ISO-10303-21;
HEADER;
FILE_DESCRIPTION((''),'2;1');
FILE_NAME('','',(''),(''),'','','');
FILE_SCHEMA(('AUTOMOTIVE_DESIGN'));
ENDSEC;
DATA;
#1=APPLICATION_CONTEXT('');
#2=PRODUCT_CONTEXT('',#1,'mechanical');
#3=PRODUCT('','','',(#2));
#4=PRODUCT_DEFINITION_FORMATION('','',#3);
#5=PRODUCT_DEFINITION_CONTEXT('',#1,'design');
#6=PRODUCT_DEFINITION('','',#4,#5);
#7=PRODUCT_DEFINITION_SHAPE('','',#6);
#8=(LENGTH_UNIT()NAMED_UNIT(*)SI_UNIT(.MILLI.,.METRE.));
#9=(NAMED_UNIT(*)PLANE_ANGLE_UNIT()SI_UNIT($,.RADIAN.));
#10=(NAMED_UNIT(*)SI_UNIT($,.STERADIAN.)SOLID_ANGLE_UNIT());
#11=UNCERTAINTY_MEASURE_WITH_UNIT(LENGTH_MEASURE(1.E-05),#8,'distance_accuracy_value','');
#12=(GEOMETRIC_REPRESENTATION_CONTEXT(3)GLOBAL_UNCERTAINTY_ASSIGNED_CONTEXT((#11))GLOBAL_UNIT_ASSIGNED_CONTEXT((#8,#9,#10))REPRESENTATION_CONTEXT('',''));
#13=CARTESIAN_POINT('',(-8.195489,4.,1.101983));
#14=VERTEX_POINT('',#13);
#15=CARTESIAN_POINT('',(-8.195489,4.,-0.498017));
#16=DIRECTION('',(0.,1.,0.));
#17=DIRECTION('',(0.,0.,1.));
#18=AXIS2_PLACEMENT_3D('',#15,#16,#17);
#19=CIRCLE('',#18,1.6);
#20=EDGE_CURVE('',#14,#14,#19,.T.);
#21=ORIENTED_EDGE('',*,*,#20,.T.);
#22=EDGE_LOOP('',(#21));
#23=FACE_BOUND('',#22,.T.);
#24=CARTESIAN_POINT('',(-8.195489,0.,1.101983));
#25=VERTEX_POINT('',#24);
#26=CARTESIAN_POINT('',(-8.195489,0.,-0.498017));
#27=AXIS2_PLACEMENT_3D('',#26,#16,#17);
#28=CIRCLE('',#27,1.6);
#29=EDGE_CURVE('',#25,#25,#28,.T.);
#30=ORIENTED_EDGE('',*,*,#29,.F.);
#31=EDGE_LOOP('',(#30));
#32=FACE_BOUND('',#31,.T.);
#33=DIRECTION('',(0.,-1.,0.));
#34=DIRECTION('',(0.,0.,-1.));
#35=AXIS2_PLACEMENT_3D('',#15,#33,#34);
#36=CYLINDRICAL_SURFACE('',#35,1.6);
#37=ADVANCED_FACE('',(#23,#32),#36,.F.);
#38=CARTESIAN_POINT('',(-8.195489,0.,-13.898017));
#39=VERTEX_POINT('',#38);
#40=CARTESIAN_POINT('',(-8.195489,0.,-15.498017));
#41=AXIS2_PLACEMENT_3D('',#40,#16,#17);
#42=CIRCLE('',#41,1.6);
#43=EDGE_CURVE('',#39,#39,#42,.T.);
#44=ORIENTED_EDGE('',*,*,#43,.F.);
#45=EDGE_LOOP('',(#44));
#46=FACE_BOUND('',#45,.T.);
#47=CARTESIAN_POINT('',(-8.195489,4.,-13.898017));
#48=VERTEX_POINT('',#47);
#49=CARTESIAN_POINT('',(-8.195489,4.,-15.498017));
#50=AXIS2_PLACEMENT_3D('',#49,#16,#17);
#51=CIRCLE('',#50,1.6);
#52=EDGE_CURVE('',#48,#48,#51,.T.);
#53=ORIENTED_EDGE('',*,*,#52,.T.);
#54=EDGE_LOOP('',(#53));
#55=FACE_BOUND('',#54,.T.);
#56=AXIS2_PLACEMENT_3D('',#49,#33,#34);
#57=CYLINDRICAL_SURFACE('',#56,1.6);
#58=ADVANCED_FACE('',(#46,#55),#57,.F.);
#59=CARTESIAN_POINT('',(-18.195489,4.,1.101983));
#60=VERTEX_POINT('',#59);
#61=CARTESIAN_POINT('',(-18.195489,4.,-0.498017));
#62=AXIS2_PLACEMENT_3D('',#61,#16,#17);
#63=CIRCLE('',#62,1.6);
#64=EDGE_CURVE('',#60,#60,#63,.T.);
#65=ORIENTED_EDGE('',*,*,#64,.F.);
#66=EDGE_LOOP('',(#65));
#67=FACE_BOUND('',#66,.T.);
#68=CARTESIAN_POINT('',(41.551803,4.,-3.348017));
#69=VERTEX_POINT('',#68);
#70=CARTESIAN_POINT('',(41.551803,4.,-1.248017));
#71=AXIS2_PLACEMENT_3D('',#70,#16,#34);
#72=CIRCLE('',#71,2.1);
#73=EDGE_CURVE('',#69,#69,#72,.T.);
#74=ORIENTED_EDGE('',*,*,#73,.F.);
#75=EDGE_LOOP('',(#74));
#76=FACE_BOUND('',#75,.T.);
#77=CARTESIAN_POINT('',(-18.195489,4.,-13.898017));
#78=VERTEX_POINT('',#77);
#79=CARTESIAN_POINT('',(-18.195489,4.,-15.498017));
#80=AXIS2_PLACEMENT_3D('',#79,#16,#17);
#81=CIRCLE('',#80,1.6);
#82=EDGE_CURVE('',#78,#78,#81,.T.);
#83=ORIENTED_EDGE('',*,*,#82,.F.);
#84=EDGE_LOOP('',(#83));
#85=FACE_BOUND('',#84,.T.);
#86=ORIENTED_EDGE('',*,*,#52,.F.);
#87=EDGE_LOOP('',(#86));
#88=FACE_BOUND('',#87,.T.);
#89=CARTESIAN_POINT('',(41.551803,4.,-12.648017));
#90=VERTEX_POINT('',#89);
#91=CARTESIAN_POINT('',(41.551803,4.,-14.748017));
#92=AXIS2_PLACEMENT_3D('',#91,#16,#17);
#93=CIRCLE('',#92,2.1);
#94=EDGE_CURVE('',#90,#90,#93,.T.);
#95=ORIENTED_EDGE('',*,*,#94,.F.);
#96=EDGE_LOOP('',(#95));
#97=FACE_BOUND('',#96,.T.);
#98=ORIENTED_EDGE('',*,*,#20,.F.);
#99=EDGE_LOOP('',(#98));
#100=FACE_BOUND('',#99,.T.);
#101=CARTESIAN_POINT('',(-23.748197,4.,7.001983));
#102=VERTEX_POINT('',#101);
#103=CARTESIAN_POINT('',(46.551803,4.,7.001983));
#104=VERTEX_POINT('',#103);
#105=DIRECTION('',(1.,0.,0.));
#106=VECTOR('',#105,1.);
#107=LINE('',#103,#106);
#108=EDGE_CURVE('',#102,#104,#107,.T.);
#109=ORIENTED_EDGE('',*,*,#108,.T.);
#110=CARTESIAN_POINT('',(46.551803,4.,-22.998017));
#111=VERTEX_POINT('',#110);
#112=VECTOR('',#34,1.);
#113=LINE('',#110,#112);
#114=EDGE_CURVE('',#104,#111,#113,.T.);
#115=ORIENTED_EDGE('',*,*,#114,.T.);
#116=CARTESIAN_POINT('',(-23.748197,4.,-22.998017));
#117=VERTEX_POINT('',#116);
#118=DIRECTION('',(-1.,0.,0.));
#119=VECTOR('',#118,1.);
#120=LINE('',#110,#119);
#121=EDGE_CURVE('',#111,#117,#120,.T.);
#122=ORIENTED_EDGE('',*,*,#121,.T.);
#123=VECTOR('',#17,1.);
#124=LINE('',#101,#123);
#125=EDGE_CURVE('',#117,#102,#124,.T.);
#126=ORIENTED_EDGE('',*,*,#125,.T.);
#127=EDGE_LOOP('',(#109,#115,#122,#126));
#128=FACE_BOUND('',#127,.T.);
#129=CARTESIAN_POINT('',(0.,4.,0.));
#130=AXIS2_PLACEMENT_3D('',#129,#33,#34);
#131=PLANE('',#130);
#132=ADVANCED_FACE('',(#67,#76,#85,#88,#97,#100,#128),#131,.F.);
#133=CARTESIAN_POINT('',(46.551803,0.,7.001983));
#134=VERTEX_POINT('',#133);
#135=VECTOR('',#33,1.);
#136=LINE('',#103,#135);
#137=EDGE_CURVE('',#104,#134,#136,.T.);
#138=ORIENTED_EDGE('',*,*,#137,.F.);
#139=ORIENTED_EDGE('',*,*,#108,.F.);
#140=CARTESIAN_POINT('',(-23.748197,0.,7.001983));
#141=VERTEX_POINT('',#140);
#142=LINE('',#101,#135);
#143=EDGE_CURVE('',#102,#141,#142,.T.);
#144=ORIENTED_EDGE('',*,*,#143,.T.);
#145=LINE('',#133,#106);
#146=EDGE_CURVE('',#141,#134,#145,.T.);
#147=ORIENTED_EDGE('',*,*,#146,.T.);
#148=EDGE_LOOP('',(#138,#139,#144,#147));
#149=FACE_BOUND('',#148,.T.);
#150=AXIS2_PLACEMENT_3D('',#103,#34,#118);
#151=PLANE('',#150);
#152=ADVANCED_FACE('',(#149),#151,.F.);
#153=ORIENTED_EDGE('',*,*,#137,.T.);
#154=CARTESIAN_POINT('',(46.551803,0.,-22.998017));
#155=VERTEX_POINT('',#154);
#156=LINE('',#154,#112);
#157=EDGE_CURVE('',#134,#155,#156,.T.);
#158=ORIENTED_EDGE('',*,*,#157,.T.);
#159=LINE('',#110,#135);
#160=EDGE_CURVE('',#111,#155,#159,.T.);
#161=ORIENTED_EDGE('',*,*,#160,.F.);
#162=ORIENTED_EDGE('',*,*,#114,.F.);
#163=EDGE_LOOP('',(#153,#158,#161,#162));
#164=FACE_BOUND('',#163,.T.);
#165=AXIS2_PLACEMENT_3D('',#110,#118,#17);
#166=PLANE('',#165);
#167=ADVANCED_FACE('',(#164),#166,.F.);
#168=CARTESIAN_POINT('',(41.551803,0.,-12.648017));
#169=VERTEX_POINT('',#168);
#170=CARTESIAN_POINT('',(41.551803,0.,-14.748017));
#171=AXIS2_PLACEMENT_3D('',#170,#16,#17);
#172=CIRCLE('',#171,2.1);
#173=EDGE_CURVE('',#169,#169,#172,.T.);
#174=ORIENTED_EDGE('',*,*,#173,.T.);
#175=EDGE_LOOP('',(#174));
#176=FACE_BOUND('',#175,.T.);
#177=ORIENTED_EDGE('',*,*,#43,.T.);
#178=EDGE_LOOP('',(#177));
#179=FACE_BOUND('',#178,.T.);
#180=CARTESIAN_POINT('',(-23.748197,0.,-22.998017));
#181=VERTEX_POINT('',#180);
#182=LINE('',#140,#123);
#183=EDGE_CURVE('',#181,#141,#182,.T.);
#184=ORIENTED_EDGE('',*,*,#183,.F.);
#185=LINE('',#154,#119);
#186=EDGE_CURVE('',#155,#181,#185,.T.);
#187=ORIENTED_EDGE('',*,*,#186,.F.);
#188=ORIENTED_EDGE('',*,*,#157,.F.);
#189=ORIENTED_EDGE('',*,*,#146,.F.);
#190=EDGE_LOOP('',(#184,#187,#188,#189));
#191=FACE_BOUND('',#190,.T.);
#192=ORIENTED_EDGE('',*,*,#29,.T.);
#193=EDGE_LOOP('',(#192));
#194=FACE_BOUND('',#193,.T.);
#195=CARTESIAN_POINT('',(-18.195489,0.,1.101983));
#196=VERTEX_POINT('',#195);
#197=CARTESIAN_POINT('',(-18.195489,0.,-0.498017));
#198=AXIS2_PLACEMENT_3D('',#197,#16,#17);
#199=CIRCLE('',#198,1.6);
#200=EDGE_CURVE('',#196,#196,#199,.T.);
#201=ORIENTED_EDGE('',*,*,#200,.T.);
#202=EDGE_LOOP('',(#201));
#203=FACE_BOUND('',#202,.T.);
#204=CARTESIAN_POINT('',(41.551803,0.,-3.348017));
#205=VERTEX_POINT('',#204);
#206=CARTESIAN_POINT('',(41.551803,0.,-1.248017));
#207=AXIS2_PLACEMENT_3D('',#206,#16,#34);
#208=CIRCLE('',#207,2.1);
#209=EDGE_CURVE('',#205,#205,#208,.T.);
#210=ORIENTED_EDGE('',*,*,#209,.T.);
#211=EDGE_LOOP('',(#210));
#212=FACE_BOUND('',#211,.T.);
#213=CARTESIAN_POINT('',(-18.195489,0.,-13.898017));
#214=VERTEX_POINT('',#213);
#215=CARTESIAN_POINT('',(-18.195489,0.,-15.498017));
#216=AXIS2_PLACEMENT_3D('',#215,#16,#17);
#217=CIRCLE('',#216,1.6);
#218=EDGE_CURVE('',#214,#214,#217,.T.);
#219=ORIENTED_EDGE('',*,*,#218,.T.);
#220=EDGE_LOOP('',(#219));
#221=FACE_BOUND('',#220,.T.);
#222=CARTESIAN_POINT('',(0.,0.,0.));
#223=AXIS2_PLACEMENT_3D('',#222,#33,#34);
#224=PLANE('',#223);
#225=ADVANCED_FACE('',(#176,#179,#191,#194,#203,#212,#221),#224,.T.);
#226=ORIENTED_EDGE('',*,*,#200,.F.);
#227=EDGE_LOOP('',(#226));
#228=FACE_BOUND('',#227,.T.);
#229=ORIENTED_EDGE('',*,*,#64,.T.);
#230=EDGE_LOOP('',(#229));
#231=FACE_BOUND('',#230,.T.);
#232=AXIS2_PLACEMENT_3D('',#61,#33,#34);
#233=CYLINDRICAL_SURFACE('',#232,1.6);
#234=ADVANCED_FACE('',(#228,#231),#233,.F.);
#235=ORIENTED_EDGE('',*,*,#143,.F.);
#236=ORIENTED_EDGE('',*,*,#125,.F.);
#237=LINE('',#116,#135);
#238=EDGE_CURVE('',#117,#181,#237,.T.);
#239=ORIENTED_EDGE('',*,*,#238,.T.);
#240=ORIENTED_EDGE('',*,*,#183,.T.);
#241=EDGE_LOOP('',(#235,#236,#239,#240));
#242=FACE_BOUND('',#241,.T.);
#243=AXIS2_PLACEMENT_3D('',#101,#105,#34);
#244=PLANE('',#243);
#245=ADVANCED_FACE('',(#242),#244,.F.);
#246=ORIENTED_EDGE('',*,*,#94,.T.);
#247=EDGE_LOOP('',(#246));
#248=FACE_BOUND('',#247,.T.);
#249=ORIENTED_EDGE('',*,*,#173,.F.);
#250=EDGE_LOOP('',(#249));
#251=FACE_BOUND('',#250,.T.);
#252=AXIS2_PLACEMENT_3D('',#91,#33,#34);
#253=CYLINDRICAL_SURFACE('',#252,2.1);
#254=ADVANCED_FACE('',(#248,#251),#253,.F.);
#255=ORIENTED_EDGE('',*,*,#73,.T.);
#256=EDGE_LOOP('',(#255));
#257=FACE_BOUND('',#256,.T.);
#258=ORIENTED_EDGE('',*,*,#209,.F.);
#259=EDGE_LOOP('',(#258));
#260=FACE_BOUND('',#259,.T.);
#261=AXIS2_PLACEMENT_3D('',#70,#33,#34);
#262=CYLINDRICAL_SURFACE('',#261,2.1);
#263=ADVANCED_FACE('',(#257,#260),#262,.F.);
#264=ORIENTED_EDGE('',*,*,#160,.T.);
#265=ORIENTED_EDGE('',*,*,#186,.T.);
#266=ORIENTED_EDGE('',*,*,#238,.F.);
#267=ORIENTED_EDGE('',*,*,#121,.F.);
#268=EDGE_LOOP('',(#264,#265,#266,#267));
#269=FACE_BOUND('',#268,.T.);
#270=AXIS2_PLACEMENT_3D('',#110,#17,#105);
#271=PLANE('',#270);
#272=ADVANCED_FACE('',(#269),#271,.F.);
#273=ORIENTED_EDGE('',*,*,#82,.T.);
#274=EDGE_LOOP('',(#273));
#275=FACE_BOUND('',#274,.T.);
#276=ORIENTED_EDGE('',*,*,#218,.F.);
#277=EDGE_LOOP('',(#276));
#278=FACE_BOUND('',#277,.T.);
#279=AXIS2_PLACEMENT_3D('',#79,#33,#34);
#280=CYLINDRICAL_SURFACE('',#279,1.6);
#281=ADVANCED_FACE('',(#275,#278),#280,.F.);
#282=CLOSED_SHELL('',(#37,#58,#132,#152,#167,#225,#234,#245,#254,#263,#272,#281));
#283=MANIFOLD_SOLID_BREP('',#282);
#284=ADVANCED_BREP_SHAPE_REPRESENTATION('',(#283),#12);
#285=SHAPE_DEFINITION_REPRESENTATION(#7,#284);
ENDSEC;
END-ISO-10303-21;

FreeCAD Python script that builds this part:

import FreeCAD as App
import Part
import Sketcher
from FreeCAD import Vector
Q = App.Units.Quantity


def add_polygon(sketch, points):
    """Adds a closed chain of lines whose ends are joined by coincident constraints."""
    first, n = sketch.GeometryCount, len(points)
    for a, b in zip(points, points[1:] + points[:1]):
        sketch.addGeometry(Part.LineSegment(App.Vector(*a, 0), App.Vector(*b, 0)), False)
    for i in range(n):
        sketch.addConstraint(Sketcher.Constraint("Coincident", first + i, 2, first + (i + 1) % n, 1))

doc = App.newDocument("Part")
params = doc.addObject("Spreadsheet::Sheet", "Params")
for row, (alias, value) in enumerate([
    ("sketch1_diameter", "3.2 mm"),
    ("sketch1_diameter2", "4.2 mm"),
    ("sketch1_height", "30 mm"),
    ("sketch1_width", "70.3 mm"),
    ("pad1_length", "4 mm"),
], start=1):
    params.set(f"A{row}", alias)
    params.set(f"B{row}", "=" + value)
    params.setAlias(f"B{row}", alias)

body = doc.addObject("PartDesign::Body", "Body")

# Sketch on XZ plane
sketch1 = doc.addObject("Sketcher::SketchObject", "Sketch")
body.addObject(sketch1)
sketch1.AttachmentSupport = (doc.XZ_Plane, [""])
sketch1.MapMode = "FlatFace"
add_polygon(sketch1, [(-23.748197, -22.998017), (-23.748197, 7.001983), (46.551803, 7.001983), (46.551803, -22.998017)])  # lines 0-3
sketch1.addGeometry(Part.Circle(Vector(-18.195489, -0.498017, 0), Vector(0, 0, 1), 1.6), False)  # 4
sketch1.addGeometry(Part.Circle(Vector(-8.195489, -0.498017, 0), Vector(0, 0, 1), 1.6), False)  # 5
sketch1.addGeometry(Part.Circle(Vector(41.551803, -1.248017, 0), Vector(0, 0, 1), 2.1), False)  # 6
sketch1.addGeometry(Part.Circle(Vector(-18.195489, -15.498017, 0), Vector(0, 0, 1), 1.6), False)  # 7
sketch1.addGeometry(Part.Circle(Vector(-8.195489, -15.498017, 0), Vector(0, 0, 1), 1.6), False)  # 8
sketch1.addGeometry(Part.Circle(Vector(41.551803, -14.748017, 0), Vector(0, 0, 1), 2.1), False)  # 9
sketch1.addConstraint([
    Sketcher.Constraint("Vertical", 0),
    Sketcher.Constraint("Horizontal", 1),
    Sketcher.Constraint("Vertical", 2),
    Sketcher.Constraint("Horizontal", 3),
    Sketcher.Constraint("Equal", 4, 5),
    Sketcher.Constraint("Equal", 5, 7),
    Sketcher.Constraint("Equal", 7, 8),
    Sketcher.Constraint("Equal", 6, 9),
    Sketcher.Constraint("Horizontal", 4, 3, 5, 3),
    Sketcher.Constraint("Horizontal", 7, 3, 8, 3),
    Sketcher.Constraint("Vertical", 4, 3, 7, 3),
    Sketcher.Constraint("Vertical", 5, 3, 8, 3),
    Sketcher.Constraint("Vertical", 6, 3, 9, 3),
    Sketcher.Constraint("Diameter", 4, Q("3.2 mm")),
    Sketcher.Constraint("Diameter", 6, Q("4.2 mm")),
    Sketcher.Constraint("DistanceY", 0, 1, 0, 2, Q("30 mm")),
    Sketcher.Constraint("DistanceX", 1, 1, 1, 2, Q("70.3 mm")),
    Sketcher.Constraint("DistanceX", 4, 3, 5, 3, Q("10 mm")),
    Sketcher.Constraint("DistanceY", 7, 3, 4, 3, Q("15 mm")),
    Sketcher.Constraint("DistanceX", 6, 3, 1, 2, Q("5 mm")),
    Sketcher.Constraint("DistanceY", 9, 3, 6, 3, Q("13.5 mm")),
    Sketcher.Constraint("DistanceY", 4, 3, 0, 2, Q("7.5 mm")),
    Sketcher.Constraint("DistanceY", 6, 3, 5, 3, Q("0.75 mm")),
    Sketcher.Constraint("DistanceX", 4, 3, -1, 1, Q("18.195489 mm")),
    Sketcher.Constraint("DistanceX", 5, 3, 6, 3, Q("49.747292 mm")),
    Sketcher.Constraint("DistanceY", 4, 3, -1, 1, Q("0.498017 mm")),
])
sketch1.setExpression("Constraints[17]", "Params.sketch1_diameter")
sketch1.setExpression("Constraints[18]", "Params.sketch1_diameter2")
sketch1.setExpression("Constraints[19]", "Params.sketch1_height")
sketch1.setExpression("Constraints[20]", "Params.sketch1_width")
pad1 = doc.addObject("PartDesign::Pad", "Pad")
body.addObject(pad1)
pad1.Profile = sketch1
pad1.setExpression("Length", "Params.pad1_length")
pad1.Reversed = True

doc.recompute()
